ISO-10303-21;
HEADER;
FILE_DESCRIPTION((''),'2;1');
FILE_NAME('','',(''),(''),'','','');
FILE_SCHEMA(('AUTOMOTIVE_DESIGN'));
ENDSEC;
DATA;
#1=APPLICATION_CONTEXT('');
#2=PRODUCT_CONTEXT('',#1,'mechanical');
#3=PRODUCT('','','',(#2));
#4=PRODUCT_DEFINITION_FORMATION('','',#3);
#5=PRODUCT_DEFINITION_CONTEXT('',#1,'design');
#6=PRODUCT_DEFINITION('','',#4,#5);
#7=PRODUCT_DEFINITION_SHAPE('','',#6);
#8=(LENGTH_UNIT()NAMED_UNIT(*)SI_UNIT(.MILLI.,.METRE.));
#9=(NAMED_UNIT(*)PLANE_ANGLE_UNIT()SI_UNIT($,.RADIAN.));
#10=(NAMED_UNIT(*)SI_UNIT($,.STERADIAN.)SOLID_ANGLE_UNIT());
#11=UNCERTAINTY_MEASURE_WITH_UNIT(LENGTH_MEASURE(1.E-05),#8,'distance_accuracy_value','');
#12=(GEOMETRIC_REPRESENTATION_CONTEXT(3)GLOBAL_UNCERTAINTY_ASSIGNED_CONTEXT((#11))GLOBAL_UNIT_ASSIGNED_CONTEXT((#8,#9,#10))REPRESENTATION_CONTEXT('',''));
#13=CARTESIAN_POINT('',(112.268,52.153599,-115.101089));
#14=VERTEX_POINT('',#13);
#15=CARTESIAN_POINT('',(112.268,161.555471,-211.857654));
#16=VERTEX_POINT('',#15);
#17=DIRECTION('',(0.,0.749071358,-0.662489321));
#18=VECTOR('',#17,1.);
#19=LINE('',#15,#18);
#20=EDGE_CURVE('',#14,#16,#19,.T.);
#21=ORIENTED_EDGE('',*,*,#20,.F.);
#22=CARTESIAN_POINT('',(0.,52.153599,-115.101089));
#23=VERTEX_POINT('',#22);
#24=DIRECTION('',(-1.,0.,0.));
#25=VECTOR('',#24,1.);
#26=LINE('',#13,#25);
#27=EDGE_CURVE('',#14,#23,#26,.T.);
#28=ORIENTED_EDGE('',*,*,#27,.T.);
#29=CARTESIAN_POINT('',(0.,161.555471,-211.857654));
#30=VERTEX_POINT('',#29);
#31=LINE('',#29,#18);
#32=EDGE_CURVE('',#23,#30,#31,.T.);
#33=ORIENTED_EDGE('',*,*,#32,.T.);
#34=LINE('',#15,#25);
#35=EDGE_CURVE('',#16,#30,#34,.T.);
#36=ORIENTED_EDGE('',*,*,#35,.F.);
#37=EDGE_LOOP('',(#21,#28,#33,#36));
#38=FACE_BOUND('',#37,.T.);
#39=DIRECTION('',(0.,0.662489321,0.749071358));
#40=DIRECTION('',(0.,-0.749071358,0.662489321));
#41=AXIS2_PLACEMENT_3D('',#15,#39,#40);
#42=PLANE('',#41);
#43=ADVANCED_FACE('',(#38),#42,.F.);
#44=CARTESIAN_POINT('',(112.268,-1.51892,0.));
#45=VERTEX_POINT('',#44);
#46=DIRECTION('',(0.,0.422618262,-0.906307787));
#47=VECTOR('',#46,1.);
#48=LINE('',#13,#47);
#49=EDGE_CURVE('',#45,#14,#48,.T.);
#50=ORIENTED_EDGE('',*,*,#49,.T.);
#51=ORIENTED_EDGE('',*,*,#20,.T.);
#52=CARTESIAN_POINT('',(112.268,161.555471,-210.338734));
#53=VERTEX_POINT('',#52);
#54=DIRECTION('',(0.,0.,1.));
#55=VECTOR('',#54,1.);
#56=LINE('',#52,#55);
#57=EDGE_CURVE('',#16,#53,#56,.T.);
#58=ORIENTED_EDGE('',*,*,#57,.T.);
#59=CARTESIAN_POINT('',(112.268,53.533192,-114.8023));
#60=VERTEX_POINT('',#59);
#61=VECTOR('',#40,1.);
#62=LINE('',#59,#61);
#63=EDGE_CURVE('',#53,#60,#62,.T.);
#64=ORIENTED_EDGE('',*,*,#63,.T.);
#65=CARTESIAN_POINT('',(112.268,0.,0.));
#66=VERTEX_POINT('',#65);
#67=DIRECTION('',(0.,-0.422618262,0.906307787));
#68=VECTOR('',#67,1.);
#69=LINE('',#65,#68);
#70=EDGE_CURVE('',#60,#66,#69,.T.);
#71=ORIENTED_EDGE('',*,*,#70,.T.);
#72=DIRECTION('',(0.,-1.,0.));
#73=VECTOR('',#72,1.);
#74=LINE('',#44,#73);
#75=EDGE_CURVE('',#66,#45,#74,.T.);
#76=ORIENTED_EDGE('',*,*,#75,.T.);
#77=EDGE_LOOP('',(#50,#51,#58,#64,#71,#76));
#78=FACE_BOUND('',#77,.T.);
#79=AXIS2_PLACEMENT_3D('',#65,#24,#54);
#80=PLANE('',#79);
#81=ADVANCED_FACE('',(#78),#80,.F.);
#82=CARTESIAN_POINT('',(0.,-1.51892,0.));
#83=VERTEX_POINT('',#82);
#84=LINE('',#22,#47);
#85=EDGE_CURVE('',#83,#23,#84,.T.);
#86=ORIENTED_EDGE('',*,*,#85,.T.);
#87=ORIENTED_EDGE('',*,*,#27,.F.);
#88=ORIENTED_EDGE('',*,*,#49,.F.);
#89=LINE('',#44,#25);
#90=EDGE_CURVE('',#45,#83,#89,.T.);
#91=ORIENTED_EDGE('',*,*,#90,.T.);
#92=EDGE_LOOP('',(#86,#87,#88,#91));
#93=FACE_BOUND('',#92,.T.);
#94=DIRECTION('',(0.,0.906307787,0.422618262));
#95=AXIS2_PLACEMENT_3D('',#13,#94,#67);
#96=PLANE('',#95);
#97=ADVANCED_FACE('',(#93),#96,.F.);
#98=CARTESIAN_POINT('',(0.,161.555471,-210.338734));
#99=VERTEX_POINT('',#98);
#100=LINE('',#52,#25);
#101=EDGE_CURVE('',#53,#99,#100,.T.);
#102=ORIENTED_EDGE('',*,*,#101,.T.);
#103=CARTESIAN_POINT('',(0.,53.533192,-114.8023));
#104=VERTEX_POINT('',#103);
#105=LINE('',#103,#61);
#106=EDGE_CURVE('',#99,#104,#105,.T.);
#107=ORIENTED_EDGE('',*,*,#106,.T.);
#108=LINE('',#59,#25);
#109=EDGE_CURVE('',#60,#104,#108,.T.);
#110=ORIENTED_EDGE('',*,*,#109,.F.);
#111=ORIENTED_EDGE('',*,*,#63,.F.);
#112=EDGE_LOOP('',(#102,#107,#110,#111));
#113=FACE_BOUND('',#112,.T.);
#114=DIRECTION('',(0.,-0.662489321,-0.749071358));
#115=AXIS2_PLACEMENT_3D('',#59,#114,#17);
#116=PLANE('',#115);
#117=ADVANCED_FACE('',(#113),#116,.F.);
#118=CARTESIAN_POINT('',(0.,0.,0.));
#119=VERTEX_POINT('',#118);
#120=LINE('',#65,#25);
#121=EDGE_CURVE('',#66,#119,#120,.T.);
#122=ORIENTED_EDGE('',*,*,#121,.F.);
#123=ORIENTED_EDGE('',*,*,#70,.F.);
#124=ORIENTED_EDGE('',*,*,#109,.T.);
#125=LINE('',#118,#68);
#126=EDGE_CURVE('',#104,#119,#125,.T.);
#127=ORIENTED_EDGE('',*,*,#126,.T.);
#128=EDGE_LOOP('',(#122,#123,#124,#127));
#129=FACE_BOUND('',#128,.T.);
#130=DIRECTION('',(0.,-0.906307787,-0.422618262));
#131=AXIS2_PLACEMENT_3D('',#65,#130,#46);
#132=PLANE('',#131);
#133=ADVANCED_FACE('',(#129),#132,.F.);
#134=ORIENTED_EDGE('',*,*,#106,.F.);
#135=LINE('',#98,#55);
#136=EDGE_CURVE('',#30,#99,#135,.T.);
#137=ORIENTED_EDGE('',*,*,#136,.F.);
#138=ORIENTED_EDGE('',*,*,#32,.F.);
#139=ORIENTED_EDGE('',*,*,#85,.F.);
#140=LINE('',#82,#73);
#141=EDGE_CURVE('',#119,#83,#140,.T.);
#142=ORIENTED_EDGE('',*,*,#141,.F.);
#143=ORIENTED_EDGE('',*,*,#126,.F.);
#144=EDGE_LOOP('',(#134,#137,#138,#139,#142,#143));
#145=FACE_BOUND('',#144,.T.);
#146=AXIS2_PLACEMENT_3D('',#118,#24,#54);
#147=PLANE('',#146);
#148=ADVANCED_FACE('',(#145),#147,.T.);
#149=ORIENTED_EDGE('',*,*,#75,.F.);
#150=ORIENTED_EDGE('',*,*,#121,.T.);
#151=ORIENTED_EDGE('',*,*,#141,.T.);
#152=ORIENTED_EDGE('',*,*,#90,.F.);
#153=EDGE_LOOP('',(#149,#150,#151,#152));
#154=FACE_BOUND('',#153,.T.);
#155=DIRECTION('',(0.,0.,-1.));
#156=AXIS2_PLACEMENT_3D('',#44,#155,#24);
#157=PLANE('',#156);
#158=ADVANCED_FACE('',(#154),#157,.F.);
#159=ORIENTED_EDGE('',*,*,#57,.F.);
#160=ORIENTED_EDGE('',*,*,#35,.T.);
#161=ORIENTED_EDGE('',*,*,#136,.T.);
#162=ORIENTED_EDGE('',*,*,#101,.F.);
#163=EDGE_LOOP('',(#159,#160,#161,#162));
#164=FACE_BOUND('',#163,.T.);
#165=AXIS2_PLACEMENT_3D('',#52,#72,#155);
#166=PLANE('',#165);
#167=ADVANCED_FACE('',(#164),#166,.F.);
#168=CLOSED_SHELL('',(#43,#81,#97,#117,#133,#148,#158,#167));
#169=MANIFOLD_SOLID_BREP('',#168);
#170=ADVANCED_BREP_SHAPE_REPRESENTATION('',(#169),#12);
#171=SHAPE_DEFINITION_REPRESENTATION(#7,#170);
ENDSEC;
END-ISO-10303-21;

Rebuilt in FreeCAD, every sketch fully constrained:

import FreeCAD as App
import Part
import Sketcher
from FreeCAD import Vector
Q = App.Units.Quantity


def add_polygon(sketch, points):
    """Adds a closed chain of lines whose ends are joined by coincident constraints."""
    first, n = sketch.GeometryCount, len(points)
    for a, b in zip(points, points[1:] + points[:1]):
        sketch.addGeometry(Part.LineSegment(App.Vector(*a, 0), App.Vector(*b, 0)), False)
    for i in range(n):
        sketch.addConstraint(Sketcher.Constraint("Coincident", first + i, 2, first + (i + 1) % n, 1))

doc = App.newDocument("Part")
params = doc.addObject("Spreadsheet::Sheet", "Params")
for row, (alias, value) in enumerate([
    ("sketch1_length", "5 in"),
    ("sketch1_length2", "5.75 in"),
    ("pad1_length", "4.42 in"),
], start=1):
    params.set(f"A{row}", alias)
    params.set(f"B{row}", "=" + value)
    params.setAlias(f"B{row}", alias)

body = doc.addObject("PartDesign::Body", "Body")

# Sketch on YZ plane
sketch1 = body.newObject("Sketcher::SketchObject", "Sketch")
sketch1.AttachmentSupport = (doc.getObject("YZ_Plane"), [""])
sketch1.MapMode = "FlatFace"
add_polygon(sketch1, [(53.5, -114.8), (0, 0), (-1.5, 0), (52.2, -115.1), (161.6, -211.9), (161.6, -210.3)])  # lines 0-5
sketch1.addConstraint(Sketcher.Constraint("Horizontal", 1))
sketch1.addConstraint(Sketcher.Constraint("Vertical", 4))
sketch1.addConstraint(Sketcher.Constraint("Coincident", 0, 2, -1, 1))
sketch1.addConstraint(Sketcher.Constraint("Parallel", 0, 2))
sketch1.addConstraint(Sketcher.Constraint("Parallel", 3, 5))
sketch1.addConstraint(Sketcher.Constraint("Equal", 1, 4))
sketch1.addConstraint(Sketcher.Constraint("Distance", 2, Q("5 in")))
sketch1.addConstraint(Sketcher.Constraint("Angle", 0, Q("115 deg")))
sketch1.addConstraint(Sketcher.Constraint("Distance", 3, Q("5.75 in")))
sketch1.addConstraint(Sketcher.Constraint("Angle", 3, Q("-41.49 deg")))
sketch1.addConstraint(Sketcher.Constraint("DistanceX", 1, 2, 1, 1, Q("0.0598 in")))
sketch1.setExpression("Constraints[12]", "Params.sketch1_length")
sketch1.setExpression("Constraints[14]", "Params.sketch1_length2")
pad1 = body.newObject("PartDesign::Pad", "Pad")
pad1.Profile = sketch1
pad1.setExpression("Length", "Params.pad1_length")

doc.recompute()
